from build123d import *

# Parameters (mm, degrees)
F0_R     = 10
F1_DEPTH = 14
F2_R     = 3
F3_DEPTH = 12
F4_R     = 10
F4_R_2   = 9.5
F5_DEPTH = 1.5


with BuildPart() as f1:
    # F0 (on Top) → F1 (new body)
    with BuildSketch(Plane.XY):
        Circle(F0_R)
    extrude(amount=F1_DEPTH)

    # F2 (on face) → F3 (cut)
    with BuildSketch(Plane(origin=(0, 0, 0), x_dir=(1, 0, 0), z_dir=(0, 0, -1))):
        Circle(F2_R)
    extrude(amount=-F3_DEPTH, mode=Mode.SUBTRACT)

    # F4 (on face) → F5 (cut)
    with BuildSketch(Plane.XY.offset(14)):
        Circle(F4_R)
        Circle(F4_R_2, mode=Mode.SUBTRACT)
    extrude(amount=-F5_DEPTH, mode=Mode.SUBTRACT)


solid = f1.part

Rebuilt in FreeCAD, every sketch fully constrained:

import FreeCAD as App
import Part
import Sketcher

doc = App.newDocument("Part")
params = doc.addObject("Spreadsheet::Sheet", "Params")
for row, (alias, value) in enumerate([
    ("sketch1_diameter", "20 mm"),
    ("pad1_length", "14 mm"),
    ("sketch2_diameter", "6 mm"),
    ("pocket1_length", "12 mm"),
    ("sketch3_diameter", "20 mm"),
    ("sketch3_diameter2", "19 mm"),
    ("pocket2_length", "1.5 mm"),
], start=1):
    params.set(f"A{row}", alias)
    params.set(f"B{row}", "=" + value)
    params.setAlias(f"B{row}", alias)

body = doc.addObject("PartDesign::Body", "Body")

# Sketch on XY plane
sketch1 = body.newObject("Sketcher::SketchObject", "Sketch")
sketch1.AttachmentSupport = (doc.getObject("XY_Plane"), [""])
sketch1.MapMode = "FlatFace"
sketch1.addGeometry(Part.Circle(App.Vector(0, 0, 0), App.Vector(0, 0, 1), 10), False)
sketch1.addConstraint([
    Sketcher.Constraint("Coincident", 0, 3, -1, 1),
    Sketcher.Constraint("Diameter", 0, 20.0),
])
sketch1.setExpression("Constraints[1]", "Params.sketch1_diameter")
pad1 = body.newObject("PartDesign::Pad", "Pad")
pad1.Profile = sketch1
pad1.setExpression("Length", "Params.pad1_length")

# Sketch on XY plane
sketch2 = body.newObject("Sketcher::SketchObject", "Sketch001")
sketch2.AttachmentSupport = (doc.getObject("XY_Plane"), [""])
sketch2.MapMode = "FlatFace"
sketch2.addGeometry(Part.Circle(App.Vector(0, 0, 0), App.Vector(0, 0, 1), 3), False)
sketch2.addConstraint([
    Sketcher.Constraint("Coincident", 0, 3, -1, 1),
    Sketcher.Constraint("Diameter", 0, 6.0),
])
sketch2.setExpression("Constraints[1]", "Params.sketch2_diameter")
pocket1 = body.newObject("PartDesign::Pocket", "Pocket")
pocket1.Profile = sketch2
pocket1.setExpression("Length", "Params.pocket1_length")
pocket1.Reversed = True

# Sketch on XY plane
sketch3 = body.newObject("Sketcher::SketchObject", "Sketch002")
sketch3.AttachmentSupport = (doc.getObject("XY_Plane"), [""])
sketch3.MapMode = "FlatFace"
sketch3.AttachmentOffset = App.Placement(App.Vector(0, 0, 14), App.Rotation())
sketch3.addGeometry([
    Part.Circle(App.Vector(0, 0, 0), App.Vector(0, 0, 1), 10),
    Part.Circle(App.Vector(0, 0, 0), App.Vector(0, 0, 1), 9.5),
], False)
sketch3.addConstraint([
    Sketcher.Constraint("Coincident", 0, 3, -1, 1),
    Sketcher.Constraint("Coincident", 1, 3, -1, 1),
    Sketcher.Constraint("Diameter", 0, 20.0),
    Sketcher.Constraint("Diameter", 1, 19.0),
])
sketch3.setExpression("Constraints[2]", "Params.sketch3_diameter")
sketch3.setExpression("Constraints[3]", "Params.sketch3_diameter2")
pocket2 = body.newObject("PartDesign::Pocket", "Pocket001")
pocket2.Profile = sketch3
pocket2.setExpression("Length", "Params.pocket2_length")

doc.recompute()
